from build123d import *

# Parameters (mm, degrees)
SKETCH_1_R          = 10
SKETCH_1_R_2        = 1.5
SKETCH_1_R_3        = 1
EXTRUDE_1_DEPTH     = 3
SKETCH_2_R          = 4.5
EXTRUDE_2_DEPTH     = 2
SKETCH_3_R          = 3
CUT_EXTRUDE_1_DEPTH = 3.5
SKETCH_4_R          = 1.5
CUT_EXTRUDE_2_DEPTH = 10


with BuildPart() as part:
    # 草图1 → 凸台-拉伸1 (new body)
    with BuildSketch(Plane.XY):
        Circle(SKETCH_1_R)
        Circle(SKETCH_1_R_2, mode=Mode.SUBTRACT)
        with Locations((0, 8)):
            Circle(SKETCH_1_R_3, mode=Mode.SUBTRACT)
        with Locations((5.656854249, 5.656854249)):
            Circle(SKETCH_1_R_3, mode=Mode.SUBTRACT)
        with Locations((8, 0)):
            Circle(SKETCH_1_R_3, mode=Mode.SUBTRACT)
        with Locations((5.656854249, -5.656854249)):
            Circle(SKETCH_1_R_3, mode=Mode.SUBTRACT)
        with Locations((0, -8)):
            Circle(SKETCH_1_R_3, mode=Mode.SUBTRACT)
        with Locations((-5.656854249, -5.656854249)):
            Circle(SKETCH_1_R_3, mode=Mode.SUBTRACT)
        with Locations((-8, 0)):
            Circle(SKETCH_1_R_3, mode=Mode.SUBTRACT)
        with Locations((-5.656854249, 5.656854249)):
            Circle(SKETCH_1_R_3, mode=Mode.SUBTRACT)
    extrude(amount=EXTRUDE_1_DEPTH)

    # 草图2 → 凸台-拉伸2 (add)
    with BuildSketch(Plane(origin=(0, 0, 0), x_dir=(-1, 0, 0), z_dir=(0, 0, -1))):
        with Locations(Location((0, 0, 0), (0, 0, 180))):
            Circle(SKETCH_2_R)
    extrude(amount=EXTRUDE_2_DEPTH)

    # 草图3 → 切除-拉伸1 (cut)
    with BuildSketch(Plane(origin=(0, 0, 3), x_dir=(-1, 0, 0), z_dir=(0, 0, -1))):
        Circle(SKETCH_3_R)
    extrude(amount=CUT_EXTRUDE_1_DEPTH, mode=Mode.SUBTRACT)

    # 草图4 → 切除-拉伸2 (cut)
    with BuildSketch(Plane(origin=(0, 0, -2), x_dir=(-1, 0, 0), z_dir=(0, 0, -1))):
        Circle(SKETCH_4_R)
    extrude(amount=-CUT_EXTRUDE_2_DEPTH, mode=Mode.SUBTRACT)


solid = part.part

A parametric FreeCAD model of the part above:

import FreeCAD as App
import Part
import Sketcher
Q = App.Units.Quantity

doc = App.newDocument("Part")
body = doc.addObject("PartDesign::Body", "Body")

# Sketch on XY plane
sketch1 = body.newObject("Sketcher::SketchObject", "Sketch")
sketch1.AttachmentSupport = (doc.getObject("XY_Plane"), [""])
sketch1.MapMode = "FlatFace"
sketch1.addGeometry([
    Part.Circle(App.Vector(0, 0, 0), App.Vector(0, 0, 1), 10),  # 0
    Part.Circle(App.Vector(-5.7, -5.7, 0), App.Vector(0, 0, 1), 1),  # 1
    Part.Circle(App.Vector(0, -8, 0), App.Vector(0, 0, 1), 1),  # 2
    Part.Circle(App.Vector(5.7, -5.7, 0), App.Vector(0, 0, 1), 1),  # 3
    Part.Circle(App.Vector(-8, 0, 0), App.Vector(0, 0, 1), 1),  # 4
    Part.Circle(App.Vector(-5.7, 5.7, 0), App.Vector(0, 0, 1), 1),  # 5
    Part.Circle(App.Vector(0, 0, 0), App.Vector(0, 0, 1), 1.5),  # 6
    Part.Circle(App.Vector(8, 0, 0), App.Vector(0, 0, 1), 1),  # 7
    Part.Circle(App.Vector(0, 8, 0), App.Vector(0, 0, 1), 1),  # 8
    Part.Circle(App.Vector(5.7, 5.7, 0), App.Vector(0, 0, 1), 1),  # 9
], False)
sketch1.addConstraint([
    Sketcher.Constraint("Coincident", 0, 3, -1, 1),
    Sketcher.Constraint("Coincident", 6, 3, -1, 1),
    Sketcher.Constraint("Equal", 1, 2),
    Sketcher.Constraint("Equal", 2, 3),
    Sketcher.Constraint("Equal", 3, 4),
    Sketcher.Constraint("Equal", 4, 5),
    Sketcher.Constraint("Equal", 5, 7),
    Sketcher.Constraint("Equal", 7, 8),
    Sketcher.Constraint("Equal", 8, 9),
    Sketcher.Constraint("Symmetric", 3, 3, 5, 3, -1, 1),
    Sketcher.Constraint("Symmetric", 4, 3, 7, 3, -1, 1),
    Sketcher.Constraint("Symmetric", 2, 3, 8, 3, -1, 1),
    Sketcher.Constraint("Symmetric", 1, 3, 9, 3, -1, 1),
    Sketcher.Constraint("Symmetric", 1, 3, 3, 3, -2),
    Sketcher.Constraint("PointOnObject", 2, 3, -2),
    Sketcher.Constraint("PointOnObject", 4, 3, -1),
    Sketcher.Constraint("Diameter", 0, Q("20 mm")),
    Sketcher.Constraint("Diameter", 1, Q("2 mm")),
    Sketcher.Constraint("Diameter", 6, Q("3 mm")),
    Sketcher.Constraint("DistanceY", 2, 3, -1, 1, Q("8 mm")),
    Sketcher.Constraint("DistanceX", 4, 3, -1, 1, Q("8 mm")),
    Sketcher.Constraint("DistanceX", 1, 3, 3, 3, Q("11.313708 mm")),
    Sketcher.Constraint("DistanceY", 1, 3, 5, 3, Q("11.313708 mm")),
])
pad1 = body.newObject("PartDesign::Pad", "Pad")
pad1.Profile = sketch1
pad1.Length = 3

# Sketch on XY plane
sketch2 = body.newObject("Sketcher::SketchObject", "Sketch001")
sketch2.AttachmentSupport = (doc.getObject("XY_Plane"), [""])
sketch2.MapMode = "FlatFace"
sketch2.addGeometry(Part.Circle(App.Vector(0, 0, 0), App.Vector(0, 0, 1), 4.5), False)
sketch2.addConstraint([
    Sketcher.Constraint("Coincident", 0, 3, -1, 1),
    Sketcher.Constraint("Diameter", 0, Q("9 mm")),
])
pad2 = body.newObject("PartDesign::Pad", "Pad001")
pad2.Profile = sketch2
pad2.Length = 2
pad2.Reversed = True

# Sketch on XY plane
sketch3 = body.newObject("Sketcher::SketchObject", "Sketch002")
sketch3.AttachmentSupport = (doc.getObject("XY_Plane"), [""])
sketch3.MapMode = "FlatFace"
sketch3.AttachmentOffset = App.Placement(App.Vector(0, 0, 3), App.Rotation())
sketch3.addGeometry(Part.Circle(App.Vector(0, 0, 0), App.Vector(0, 0, 1), 3), False)
sketch3.addConstraint([
    Sketcher.Constraint("Coincident", 0, 3, -1, 1),
    Sketcher.Constraint("Diameter", 0, Q("6 mm")),
])
pocket1 = body.newObject("PartDesign::Pocket", "Pocket")
pocket1.Profile = sketch3
pocket1.Length = 3.5

# Sketch on XY plane
sketch4 = body.newObject("Sketcher::SketchObject", "Sketch003")
sketch4.AttachmentSupport = (doc.getObject("XY_Plane"), [""])
sketch4.MapMode = "FlatFace"
sketch4.AttachmentOffset = App.Placement(App.Vector(0, 0, -2), App.Rotation())
sketch4.addGeometry(Part.Circle(App.Vector(0, 0, 0), App.Vector(0, 0, 1), 1.5), False)
sketch4.addConstraint([
    Sketcher.Constraint("Coincident", 0, 3, -1, 1),
    Sketcher.Constraint("Diameter", 0, Q("3 mm")),
])
pocket2 = body.newObject("PartDesign::Pocket", "Pocket001")
pocket2.Profile = sketch4
pocket2.Length = 10
pocket2.Reversed = True

doc.recompute()
